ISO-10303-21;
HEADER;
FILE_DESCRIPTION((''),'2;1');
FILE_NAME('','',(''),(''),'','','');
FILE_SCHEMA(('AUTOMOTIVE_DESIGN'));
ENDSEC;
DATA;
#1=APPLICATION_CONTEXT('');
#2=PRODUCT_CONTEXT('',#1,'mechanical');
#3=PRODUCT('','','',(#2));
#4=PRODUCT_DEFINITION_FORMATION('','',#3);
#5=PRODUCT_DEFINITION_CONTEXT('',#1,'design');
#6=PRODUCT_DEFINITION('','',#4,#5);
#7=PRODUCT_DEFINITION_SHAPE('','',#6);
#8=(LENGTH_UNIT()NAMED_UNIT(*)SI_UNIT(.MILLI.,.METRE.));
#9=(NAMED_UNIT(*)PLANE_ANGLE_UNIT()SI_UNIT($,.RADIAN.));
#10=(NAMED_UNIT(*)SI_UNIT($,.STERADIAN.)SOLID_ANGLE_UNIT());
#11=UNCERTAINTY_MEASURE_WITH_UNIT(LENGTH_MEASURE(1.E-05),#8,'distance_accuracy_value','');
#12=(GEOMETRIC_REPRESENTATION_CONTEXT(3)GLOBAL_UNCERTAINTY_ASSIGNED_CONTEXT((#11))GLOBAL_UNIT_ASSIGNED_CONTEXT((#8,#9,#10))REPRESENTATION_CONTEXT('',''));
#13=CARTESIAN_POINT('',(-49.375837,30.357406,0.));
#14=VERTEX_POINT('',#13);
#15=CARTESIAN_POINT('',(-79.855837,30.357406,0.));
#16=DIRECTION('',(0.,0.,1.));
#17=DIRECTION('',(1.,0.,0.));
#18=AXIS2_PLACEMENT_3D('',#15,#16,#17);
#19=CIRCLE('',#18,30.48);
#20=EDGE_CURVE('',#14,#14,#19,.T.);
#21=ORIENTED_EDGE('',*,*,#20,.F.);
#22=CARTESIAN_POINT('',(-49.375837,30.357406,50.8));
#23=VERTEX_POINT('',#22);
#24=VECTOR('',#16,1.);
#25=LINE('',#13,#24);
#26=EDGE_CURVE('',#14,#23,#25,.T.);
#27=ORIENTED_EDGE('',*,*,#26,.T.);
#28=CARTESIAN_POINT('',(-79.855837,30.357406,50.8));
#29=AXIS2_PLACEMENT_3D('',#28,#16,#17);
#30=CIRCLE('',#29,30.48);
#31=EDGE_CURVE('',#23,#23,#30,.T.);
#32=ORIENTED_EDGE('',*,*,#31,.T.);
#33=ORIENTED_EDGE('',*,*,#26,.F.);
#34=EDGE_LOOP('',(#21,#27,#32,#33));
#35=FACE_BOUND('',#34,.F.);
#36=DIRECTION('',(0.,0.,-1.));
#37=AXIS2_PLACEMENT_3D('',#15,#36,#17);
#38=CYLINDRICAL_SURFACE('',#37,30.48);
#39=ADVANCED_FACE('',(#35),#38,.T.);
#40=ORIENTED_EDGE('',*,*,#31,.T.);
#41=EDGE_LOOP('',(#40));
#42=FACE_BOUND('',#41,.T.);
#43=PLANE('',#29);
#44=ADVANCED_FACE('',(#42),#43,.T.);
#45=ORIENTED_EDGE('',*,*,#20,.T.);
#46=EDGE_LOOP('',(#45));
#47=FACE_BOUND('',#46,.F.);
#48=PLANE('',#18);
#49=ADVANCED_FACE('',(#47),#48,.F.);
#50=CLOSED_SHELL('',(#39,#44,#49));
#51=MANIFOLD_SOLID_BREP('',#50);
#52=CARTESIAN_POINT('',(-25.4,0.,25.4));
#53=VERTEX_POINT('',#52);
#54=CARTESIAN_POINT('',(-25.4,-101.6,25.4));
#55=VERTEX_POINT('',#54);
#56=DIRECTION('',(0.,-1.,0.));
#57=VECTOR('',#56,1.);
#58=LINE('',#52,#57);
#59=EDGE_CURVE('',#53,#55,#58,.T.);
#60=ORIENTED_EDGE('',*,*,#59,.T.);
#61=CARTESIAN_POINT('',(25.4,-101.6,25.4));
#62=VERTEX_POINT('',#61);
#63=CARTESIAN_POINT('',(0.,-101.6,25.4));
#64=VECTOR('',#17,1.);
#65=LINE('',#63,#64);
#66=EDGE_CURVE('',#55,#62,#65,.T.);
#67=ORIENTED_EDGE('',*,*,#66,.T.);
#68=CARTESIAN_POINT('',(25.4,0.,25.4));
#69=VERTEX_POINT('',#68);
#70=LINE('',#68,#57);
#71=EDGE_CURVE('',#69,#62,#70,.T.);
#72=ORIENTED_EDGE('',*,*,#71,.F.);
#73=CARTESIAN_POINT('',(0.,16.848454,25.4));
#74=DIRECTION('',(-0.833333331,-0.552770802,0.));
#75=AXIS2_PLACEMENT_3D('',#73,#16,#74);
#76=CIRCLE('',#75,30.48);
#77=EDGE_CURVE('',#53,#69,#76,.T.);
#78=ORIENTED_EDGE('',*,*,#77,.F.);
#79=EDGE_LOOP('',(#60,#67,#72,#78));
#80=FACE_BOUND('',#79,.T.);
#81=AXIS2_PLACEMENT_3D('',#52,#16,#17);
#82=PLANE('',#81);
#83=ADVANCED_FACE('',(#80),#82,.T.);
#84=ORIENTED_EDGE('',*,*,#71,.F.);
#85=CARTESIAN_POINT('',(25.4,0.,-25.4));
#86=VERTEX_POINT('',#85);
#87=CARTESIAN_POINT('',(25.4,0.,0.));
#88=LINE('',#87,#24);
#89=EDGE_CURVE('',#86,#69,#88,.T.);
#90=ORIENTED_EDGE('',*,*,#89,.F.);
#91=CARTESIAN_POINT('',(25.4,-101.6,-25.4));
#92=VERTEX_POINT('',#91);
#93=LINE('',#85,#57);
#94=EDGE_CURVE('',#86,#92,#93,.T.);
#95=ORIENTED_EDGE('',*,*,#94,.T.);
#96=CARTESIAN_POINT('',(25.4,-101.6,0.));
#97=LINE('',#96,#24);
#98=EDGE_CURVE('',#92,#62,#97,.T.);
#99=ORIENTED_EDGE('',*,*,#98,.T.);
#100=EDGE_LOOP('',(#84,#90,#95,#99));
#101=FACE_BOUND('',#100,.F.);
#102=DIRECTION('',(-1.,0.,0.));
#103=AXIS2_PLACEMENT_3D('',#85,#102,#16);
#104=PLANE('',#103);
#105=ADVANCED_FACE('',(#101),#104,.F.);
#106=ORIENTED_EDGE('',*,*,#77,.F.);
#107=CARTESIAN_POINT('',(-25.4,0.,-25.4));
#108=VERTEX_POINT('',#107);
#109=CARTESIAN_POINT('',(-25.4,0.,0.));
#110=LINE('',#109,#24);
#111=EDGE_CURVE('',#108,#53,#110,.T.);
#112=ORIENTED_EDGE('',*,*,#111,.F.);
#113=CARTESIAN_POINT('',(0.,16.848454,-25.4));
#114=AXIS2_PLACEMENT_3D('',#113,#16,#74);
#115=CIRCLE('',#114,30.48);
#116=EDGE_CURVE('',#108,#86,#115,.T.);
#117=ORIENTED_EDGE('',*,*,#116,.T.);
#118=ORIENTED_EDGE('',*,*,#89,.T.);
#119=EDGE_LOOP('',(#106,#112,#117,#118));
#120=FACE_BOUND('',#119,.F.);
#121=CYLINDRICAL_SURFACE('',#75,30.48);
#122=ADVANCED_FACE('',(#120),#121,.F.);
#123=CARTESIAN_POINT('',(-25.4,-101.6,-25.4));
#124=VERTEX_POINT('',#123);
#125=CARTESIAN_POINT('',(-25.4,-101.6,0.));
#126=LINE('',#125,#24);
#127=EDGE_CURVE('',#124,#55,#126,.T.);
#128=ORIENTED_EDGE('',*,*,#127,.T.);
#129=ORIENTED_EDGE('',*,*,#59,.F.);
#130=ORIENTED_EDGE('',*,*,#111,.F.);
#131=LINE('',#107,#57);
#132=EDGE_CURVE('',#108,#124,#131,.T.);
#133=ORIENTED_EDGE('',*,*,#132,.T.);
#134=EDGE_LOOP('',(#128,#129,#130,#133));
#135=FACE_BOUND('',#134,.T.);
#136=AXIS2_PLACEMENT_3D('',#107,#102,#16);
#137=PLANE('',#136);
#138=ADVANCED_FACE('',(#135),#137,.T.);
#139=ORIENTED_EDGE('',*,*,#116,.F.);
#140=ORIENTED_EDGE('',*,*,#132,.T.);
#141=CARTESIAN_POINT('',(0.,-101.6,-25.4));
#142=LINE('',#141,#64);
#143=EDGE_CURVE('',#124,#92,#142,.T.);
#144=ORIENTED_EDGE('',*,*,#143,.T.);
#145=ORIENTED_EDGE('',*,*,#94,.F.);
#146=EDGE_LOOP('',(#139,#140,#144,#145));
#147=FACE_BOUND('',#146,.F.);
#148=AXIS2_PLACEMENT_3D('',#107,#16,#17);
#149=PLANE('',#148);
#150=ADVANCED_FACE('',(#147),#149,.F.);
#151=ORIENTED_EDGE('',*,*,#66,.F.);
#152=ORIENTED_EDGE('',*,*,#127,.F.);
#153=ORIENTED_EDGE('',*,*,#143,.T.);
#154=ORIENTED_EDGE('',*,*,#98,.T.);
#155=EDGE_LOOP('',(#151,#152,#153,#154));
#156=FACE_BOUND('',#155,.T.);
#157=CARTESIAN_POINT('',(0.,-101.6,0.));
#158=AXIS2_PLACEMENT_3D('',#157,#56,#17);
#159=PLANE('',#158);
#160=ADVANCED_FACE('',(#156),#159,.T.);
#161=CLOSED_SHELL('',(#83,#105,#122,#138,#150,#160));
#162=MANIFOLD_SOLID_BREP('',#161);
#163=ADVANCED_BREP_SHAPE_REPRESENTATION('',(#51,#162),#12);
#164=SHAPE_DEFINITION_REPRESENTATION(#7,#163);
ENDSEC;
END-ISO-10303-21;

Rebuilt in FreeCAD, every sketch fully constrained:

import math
import FreeCAD as App
import Part
import Sketcher
Q = App.Units.Quantity

doc = App.newDocument("Part")
params = doc.addObject("Spreadsheet::Sheet", "Params")
for row, (alias, value) in enumerate([
    ("sketch1_width", "2 in"),
    ("pad1_length", "4 in"),
    ("sketch2_radius", "1.2 in"),
    ("sketch2_width", "2 in"),
    ("sketch3_diameter", "2.4 in"),
    ("pad2_length", "2 in"),
], start=1):
    params.set(f"A{row}", alias)
    params.set(f"B{row}", "=" + value)
    params.setAlias(f"B{row}", alias)

body = doc.addObject("PartDesign::Body", "Body")

# Sketch on XZ plane
sketch1 = body.newObject("Sketcher::SketchObject", "Sketch")
sketch1.AttachmentSupport = (doc.getObject("XZ_Plane"), [""])
sketch1.MapMode = "FlatFace"
sketch1.addGeometry(Part.LineSegment(App.Vector(-25, 25, 0), App.Vector(-25, -25, 0)), False)
sketch1.addGeometry(Part.LineSegment(App.Vector(-25, -25, 0), App.Vector(25, -25, 0)), False)
sketch1.addGeometry(Part.LineSegment(App.Vector(25, -25, 0), App.Vector(25, 25, 0)), False)
sketch1.addGeometry(Part.LineSegment(App.Vector(25, 25, 0), App.Vector(-25, 25, 0)), False)
sketch1.addConstraint(Sketcher.Constraint("Coincident", 0, 2, 1, 1))
sketch1.addConstraint(Sketcher.Constraint("Coincident", 1, 2, 2, 1))
sketch1.addConstraint(Sketcher.Constraint("Coincident", 2, 2, 3, 1))
sketch1.addConstraint(Sketcher.Constraint("Coincident", 3, 2, 0, 1))
sketch1.addConstraint(Sketcher.Constraint("Vertical", 0))
sketch1.addConstraint(Sketcher.Constraint("Horizontal", 1))
sketch1.addConstraint(Sketcher.Constraint("Vertical", 2))
sketch1.addConstraint(Sketcher.Constraint("Horizontal", 3))
sketch1.addConstraint(Sketcher.Constraint("Symmetric", 0, 2, 2, 2, -1, 1))
sketch1.addConstraint(Sketcher.Constraint("Equal", 3, 0))
sketch1.addConstraint(Sketcher.Constraint("DistanceX", 1, 1, 1, 2, Q("2 in")))
sketch1.setExpression("Constraints[10]", "Params.sketch1_width")
pad1 = body.newObject("PartDesign::Pad", "Pad")
pad1.Profile = sketch1
pad1.setExpression("Length", "Params.pad1_length")

# Sketch on XY plane
sketch2 = body.newObject("Sketcher::SketchObject", "Sketch001")
sketch2.AttachmentSupport = (doc.getObject("XY_Plane"), [""])
sketch2.MapMode = "FlatFace"
sketch2.AttachmentOffset = App.Placement(App.Vector(0, 0, 1 * 25.4), App.Rotation())
sketch2.addGeometry(Part.LineSegment(App.Vector(25, 0, 0), App.Vector(-25, 0, 0)), False)
sketch2.addGeometry(Part.ArcOfCircle(Part.Circle(App.Vector(0, 17, 0), App.Vector(0, 0, 1), 30), math.radians(-146), math.radians(-34)), False)
sketch2.addConstraint(Sketcher.Constraint("Coincident", 0, 1, 1, 2))
sketch2.addConstraint(Sketcher.Constraint("Coincident", 1, 1, 0, 2))
sketch2.addConstraint(Sketcher.Constraint("Horizontal", 0))
sketch2.addConstraint(Sketcher.Constraint("Symmetric", 0, 1, 1, 1, -1, 1))
sketch2.addConstraint(Sketcher.Constraint("Radius", 1, Q("1.2 in")))
sketch2.addConstraint(Sketcher.Constraint("DistanceX", 0, 2, 0, 1, Q("2 in")))
sketch2.setExpression("Constraints[4]", "Params.sketch2_radius")
sketch2.setExpression("Constraints[5]", "Params.sketch2_width")
pocket1 = body.newObject("PartDesign::Pocket", "Pocket")
pocket1.Profile = sketch2
pocket1.Type = "ThroughAll"
body2 = doc.addObject("PartDesign::Body", "Body001")

# Sketch on XY plane
sketch3 = body2.newObject("Sketcher::SketchObject", "Sketch002")
sketch3.AttachmentSupport = (doc.getObject("XY_Plane001"), [""])
sketch3.MapMode = "FlatFace"
sketch3.addGeometry(Part.Circle(App.Vector(-80, 30, 0), App.Vector(0, 0, 1), 30), False)
sketch3.addConstraint(Sketcher.Constraint("Diameter", 0, Q("2.4 in")))
sketch3.addConstraint(Sketcher.Constraint("DistanceX", 0, 3, -1, 1, Q("79.855837 mm")))
sketch3.addConstraint(Sketcher.Constraint("DistanceY", -1, 1, 0, 3, Q("30.357406 mm")))
sketch3.setExpression("Constraints[0]", "Params.sketch3_diameter")
pad2 = body2.newObject("PartDesign::Pad", "Pad001")
pad2.Profile = sketch3
pad2.setExpression("Length", "Params.pad2_length")

doc.recompute()
